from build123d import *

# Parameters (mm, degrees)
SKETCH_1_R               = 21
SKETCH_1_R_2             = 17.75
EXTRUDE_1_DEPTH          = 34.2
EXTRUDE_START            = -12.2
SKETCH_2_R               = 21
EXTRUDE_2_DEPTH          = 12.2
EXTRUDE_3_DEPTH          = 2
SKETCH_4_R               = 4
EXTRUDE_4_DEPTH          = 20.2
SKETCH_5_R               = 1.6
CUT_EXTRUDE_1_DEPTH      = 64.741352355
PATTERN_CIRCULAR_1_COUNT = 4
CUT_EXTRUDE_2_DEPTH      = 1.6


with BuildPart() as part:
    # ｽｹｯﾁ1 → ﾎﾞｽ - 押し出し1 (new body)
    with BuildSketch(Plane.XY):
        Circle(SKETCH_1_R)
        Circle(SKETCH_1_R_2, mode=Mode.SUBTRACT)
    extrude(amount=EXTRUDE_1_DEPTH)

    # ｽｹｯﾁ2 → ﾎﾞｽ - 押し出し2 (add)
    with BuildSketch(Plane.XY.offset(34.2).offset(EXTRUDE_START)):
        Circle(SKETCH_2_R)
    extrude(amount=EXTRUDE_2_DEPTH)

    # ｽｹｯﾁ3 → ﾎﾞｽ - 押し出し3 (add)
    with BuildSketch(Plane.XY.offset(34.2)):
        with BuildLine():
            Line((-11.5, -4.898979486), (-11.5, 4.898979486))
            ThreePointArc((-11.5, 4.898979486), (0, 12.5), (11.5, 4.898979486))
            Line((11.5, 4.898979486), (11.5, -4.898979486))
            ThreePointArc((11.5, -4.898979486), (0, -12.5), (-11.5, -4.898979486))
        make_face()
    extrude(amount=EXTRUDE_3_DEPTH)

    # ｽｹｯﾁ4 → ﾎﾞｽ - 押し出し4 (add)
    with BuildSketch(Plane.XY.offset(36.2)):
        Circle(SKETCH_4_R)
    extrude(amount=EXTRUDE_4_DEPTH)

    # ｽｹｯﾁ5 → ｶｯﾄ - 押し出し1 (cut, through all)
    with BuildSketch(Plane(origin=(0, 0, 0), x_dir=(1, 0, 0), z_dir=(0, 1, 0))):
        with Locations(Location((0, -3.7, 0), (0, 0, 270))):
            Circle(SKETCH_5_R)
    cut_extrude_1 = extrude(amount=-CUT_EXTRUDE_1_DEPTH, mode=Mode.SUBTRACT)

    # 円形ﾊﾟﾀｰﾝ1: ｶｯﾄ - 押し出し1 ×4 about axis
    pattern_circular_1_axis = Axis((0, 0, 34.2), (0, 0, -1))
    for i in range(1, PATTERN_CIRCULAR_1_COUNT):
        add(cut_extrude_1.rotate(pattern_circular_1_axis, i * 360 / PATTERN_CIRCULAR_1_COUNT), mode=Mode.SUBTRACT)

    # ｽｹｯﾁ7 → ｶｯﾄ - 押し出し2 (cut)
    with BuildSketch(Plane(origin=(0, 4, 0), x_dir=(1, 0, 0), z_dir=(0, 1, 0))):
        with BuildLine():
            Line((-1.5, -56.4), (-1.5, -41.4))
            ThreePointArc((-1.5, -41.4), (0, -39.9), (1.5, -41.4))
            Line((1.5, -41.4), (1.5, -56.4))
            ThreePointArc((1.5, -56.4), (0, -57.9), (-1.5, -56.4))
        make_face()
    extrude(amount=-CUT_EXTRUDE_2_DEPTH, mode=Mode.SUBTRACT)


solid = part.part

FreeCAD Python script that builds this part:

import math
import FreeCAD as App
import Part
import Sketcher
from FreeCAD import Vector
Q = App.Units.Quantity

doc = App.newDocument("Part")
body = doc.addObject("PartDesign::Body", "Body")

# Sketch on XY plane
sketch1 = body.newObject("Sketcher::SketchObject", "Sketch")
sketch1.AttachmentSupport = (doc.getObject("XY_Plane"), [""])
sketch1.MapMode = "FlatFace"
sketch1.addGeometry(Part.Circle(Vector(0, 0, 0), Vector(0, 0, 1), 21), False)
sketch1.addGeometry(Part.Circle(Vector(0, 0, 0), Vector(0, 0, 1), 18), False)
sketch1.addConstraint(Sketcher.Constraint("Coincident", 0, 3, -1, 1))
sketch1.addConstraint(Sketcher.Constraint("Coincident", 1, 3, -1, 1))
sketch1.addConstraint(Sketcher.Constraint("Diameter", 0, Q("42 mm")))
sketch1.addConstraint(Sketcher.Constraint("Diameter", 1, Q("35.5 mm")))
pad1 = body.newObject("PartDesign::Pad", "Pad")
pad1.Profile = sketch1
pad1.Length = 34.2

# Sketch on XY plane
sketch2 = body.newObject("Sketcher::SketchObject", "Sketch001")
sketch2.AttachmentSupport = (doc.getObject("XY_Plane"), [""])
sketch2.MapMode = "FlatFace"
sketch2.AttachmentOffset = App.Placement(Vector(0, 0, 22), App.Rotation())
sketch2.addGeometry(Part.Circle(Vector(0, 0, 0), Vector(0, 0, 1), 21), False)
sketch2.addConstraint(Sketcher.Constraint("Coincident", 0, 3, -1, 1))
sketch2.addConstraint(Sketcher.Constraint("Diameter", 0, Q("42 mm")))
pad2 = body.newObject("PartDesign::Pad", "Pad001")
pad2.Profile = sketch2
pad2.Length = 12.2

# Sketch on XY plane
sketch3 = body.newObject("Sketcher::SketchObject", "Sketch002")
sketch3.AttachmentSupport = (doc.getObject("XY_Plane"), [""])
sketch3.MapMode = "FlatFace"
sketch3.AttachmentOffset = App.Placement(Vector(0, 0, 34.2), App.Rotation())
sketch3.addGeometry(Part.LineSegment(Vector(-12, 5, 0), Vector(-12, -5, 0)), False)
sketch3.addGeometry(Part.ArcOfCircle(Part.Circle(Vector(0, 0, 0), Vector(0, 0, 1), 12), math.radians(-157), math.radians(-23)), False)
sketch3.addGeometry(Part.LineSegment(Vector(12, -5, 0), Vector(12, 5, 0)), False)
sketch3.addGeometry(Part.ArcOfCircle(Part.Circle(Vector(0, 0, 0), Vector(0, 0, 1), 12), math.radians(23), math.radians(157)), False)
sketch3.addConstraint(Sketcher.Constraint("Coincident", 0, 2, 1, 1))
sketch3.addConstraint(Sketcher.Constraint("Coincident", 1, 2, 2, 1))
sketch3.addConstraint(Sketcher.Constraint("Coincident", 2, 2, 3, 1))
sketch3.addConstraint(Sketcher.Constraint("Coincident", 3, 2, 0, 1))
sketch3.addConstraint(Sketcher.Constraint("Vertical", 0))
sketch3.addConstraint(Sketcher.Constraint("Vertical", 2))
sketch3.addConstraint(Sketcher.Constraint("Coincident", 1, 3, -1, 1))
sketch3.addConstraint(Sketcher.Constraint("Coincident", 3, 3, -1, 1))
sketch3.addConstraint(Sketcher.Constraint("Equal", 1, 3))
sketch3.addConstraint(Sketcher.Constraint("Horizontal", 0, 2, 1, 2))
sketch3.addConstraint(Sketcher.Constraint("Radius", 1, Q("12.5 mm")))
sketch3.addConstraint(Sketcher.Constraint("DistanceX", 0, 2, 1, 2, Q("23 mm")))
pad3 = body.newObject("PartDesign::Pad", "Pad002")
pad3.Profile = sketch3
pad3.Length = 2

# Sketch on XY plane
sketch4 = body.newObject("Sketcher::SketchObject", "Sketch003")
sketch4.AttachmentSupport = (doc.getObject("XY_Plane"), [""])
sketch4.MapMode = "FlatFace"
sketch4.AttachmentOffset = App.Placement(Vector(0, 0, 36.2), App.Rotation())
sketch4.addGeometry(Part.Circle(Vector(0, 0, 0), Vector(0, 0, 1), 4), False)
sketch4.addConstraint(Sketcher.Constraint("Coincident", 0, 3, -1, 1))
sketch4.addConstraint(Sketcher.Constraint("Diameter", 0, Q("8 mm")))
pad4 = body.newObject("PartDesign::Pad", "Pad003")
pad4.Profile = sketch4
pad4.Length = 20.2

# Sketch on XZ plane
sketch5 = body.newObject("Sketcher::SketchObject", "Sketch004")
sketch5.AttachmentSupport = (doc.getObject("XZ_Plane"), [""])
sketch5.MapMode = "FlatFace"
sketch5.addGeometry(Part.Circle(Vector(0, 3.7, 0), Vector(0, 0, 1), 1.6), False)
sketch5.addConstraint(Sketcher.Constraint("PointOnObject", 0, 3, -2))
sketch5.addConstraint(Sketcher.Constraint("Diameter", 0, Q("3.2 mm")))
sketch5.addConstraint(Sketcher.Constraint("DistanceY", -1, 1, 0, 3, Q("3.7 mm")))
pocket1 = body.newObject("PartDesign::Pocket", "Pocket")
pocket1.Profile = sketch5
pocket1.Type = "ThroughAll"
pocket1.Reversed = True
doc.recompute()

polarpattern = body.newObject("PartDesign::PolarPattern", "PolarPattern")
polarpattern.Originals = [pocket1]
polarpattern.Axis = (doc.getObject("Z_Axis"), [""])
polarpattern.Angle = 360
polarpattern.Occurrences = 4
body.Tip = polarpattern

# Sketch on XZ plane
sketch6 = body.newObject("Sketcher::SketchObject", "Sketch005")
sketch6.AttachmentSupport = (doc.getObject("XZ_Plane"), [""])
sketch6.MapMode = "FlatFace"
sketch6.AttachmentOffset = App.Placement(Vector(0, 0, -4), App.Rotation())
sketch6.addGeometry(Part.LineSegment(Vector(-1.5, 41.4, 0), Vector(-1.5, 56.4, 0)), False)
sketch6.addGeometry(Part.ArcOfCircle(Part.Circle(Vector(0, 56.4, 0), Vector(0, 0, 1), 1.5), math.radians(0), math.radians(180)), False)
sketch6.addGeometry(Part.LineSegment(Vector(1.5, 56.4, 0), Vector(1.5, 41.4, 0)), False)
sketch6.addGeometry(Part.ArcOfCircle(Part.Circle(Vector(0, 41.4, 0), Vector(0, 0, 1), 1.5), math.radians(180), math.radians(360)), False)
sketch6.addConstraint(Sketcher.Constraint("Tangent", 0, 2, 1, 2))
sketch6.addConstraint(Sketcher.Constraint("Tangent", 1, 1, 2, 1))
sketch6.addConstraint(Sketcher.Constraint("Tangent", 2, 2, 3, 2))
sketch6.addConstraint(Sketcher.Constraint("Tangent", 3, 1, 0, 1))
sketch6.addConstraint(Sketcher.Constraint("Vertical", 0))
sketch6.addConstraint(Sketcher.Constraint("Vertical", 2))
sketch6.addConstraint(Sketcher.Constraint("PointOnObject", 1, 3, -2))
sketch6.addConstraint(Sketcher.Constraint("Radius", 1, Q("1.5 mm")))
sketch6.addConstraint(Sketcher.Constraint("DistanceY", 0, 1, 0, 2, Q("15 mm")))
sketch6.addConstraint(Sketcher.Constraint("DistanceY", -1, 1, 1, 3, Q("56.4 mm")))
pocket2 = body.newObject("PartDesign::Pocket", "Pocket001")
pocket2.Profile = sketch6
pocket2.Length = 1.6
pocket2.Reversed = True

doc.recompute()
